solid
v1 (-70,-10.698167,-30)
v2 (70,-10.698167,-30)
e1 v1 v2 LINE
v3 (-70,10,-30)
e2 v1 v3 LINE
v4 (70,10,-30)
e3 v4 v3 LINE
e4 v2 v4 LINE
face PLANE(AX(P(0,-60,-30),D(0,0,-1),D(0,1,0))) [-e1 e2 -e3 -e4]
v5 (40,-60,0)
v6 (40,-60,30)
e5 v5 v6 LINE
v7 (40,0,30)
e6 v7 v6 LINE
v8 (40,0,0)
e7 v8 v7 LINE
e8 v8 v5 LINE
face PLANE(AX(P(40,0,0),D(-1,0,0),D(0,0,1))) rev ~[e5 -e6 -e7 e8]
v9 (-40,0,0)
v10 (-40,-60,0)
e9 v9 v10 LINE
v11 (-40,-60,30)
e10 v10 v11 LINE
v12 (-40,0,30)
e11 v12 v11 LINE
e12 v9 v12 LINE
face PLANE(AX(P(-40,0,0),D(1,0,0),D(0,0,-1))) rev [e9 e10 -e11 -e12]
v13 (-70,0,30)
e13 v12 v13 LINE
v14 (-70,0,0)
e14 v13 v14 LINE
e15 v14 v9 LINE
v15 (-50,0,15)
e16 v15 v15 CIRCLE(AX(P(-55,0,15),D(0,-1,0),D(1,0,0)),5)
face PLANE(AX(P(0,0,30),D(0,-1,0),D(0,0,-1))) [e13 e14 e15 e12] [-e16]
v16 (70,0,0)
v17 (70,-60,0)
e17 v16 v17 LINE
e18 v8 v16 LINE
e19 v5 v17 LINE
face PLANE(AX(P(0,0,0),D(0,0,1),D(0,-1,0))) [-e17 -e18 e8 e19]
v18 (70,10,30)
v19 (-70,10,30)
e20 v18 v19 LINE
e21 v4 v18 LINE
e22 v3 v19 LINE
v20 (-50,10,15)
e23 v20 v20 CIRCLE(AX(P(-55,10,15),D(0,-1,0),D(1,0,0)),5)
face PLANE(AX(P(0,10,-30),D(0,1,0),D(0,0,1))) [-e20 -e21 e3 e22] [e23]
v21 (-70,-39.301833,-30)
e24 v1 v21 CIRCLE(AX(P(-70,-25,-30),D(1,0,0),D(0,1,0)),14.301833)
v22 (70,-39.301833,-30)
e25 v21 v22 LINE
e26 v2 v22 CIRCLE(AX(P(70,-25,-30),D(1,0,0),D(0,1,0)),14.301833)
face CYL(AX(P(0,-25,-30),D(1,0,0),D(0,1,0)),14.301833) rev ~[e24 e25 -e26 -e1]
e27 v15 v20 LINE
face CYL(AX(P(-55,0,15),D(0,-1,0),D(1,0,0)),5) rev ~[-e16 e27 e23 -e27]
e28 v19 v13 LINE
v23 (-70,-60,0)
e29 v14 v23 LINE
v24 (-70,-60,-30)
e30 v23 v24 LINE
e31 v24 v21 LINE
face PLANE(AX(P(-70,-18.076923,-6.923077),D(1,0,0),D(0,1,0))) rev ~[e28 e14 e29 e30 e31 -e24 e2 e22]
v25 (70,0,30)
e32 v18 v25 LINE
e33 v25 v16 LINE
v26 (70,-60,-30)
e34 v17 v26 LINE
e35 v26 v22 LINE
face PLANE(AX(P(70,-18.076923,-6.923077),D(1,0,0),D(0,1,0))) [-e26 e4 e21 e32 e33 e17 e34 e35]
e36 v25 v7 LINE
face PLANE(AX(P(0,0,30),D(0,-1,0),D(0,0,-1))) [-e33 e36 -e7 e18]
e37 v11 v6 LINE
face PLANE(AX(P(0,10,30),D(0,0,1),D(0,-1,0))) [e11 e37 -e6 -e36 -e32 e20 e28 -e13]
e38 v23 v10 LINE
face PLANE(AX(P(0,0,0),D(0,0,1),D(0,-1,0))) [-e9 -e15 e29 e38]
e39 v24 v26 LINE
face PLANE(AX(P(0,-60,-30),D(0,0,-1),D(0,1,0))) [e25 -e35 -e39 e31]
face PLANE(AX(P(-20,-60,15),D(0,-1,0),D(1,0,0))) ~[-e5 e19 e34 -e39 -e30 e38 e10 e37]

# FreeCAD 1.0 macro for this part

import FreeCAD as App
import Part
import Sketcher


def add_polygon(sketch, points):
    """Adds a closed chain of lines whose ends are joined by coincident constraints."""
    first, n = sketch.GeometryCount, len(points)
    for a, b in zip(points, points[1:] + points[:1]):
        sketch.addGeometry(Part.LineSegment(App.Vector(*a, 0), App.Vector(*b, 0)), False)
    for i in range(n):
        sketch.addConstraint(Sketcher.Constraint("Coincident", first + i, 2, first + (i + 1) % n, 1))

doc = App.newDocument("Part")
body = doc.addObject("PartDesign::Body", "Body")

# Sketch on YZ plane
sketch1 = body.newObject("Sketcher::SketchObject", "Sketch")
sketch1.AttachmentSupport = (doc.getObject("YZ_Plane"), [""])
sketch1.MapMode = "FlatFace"
add_polygon(sketch1, [(0, 30), (0, 0), (-60, 0), (-60, -30), (10, -30), (10, 30)])  # lines 0-5
sketch1.addConstraint([
    Sketcher.Constraint("Vertical", 0),
    Sketcher.Constraint("Horizontal", 1),
    Sketcher.Constraint("Vertical", 2),
    Sketcher.Constraint("Horizontal", 3),
    Sketcher.Constraint("Vertical", 4),
    Sketcher.Constraint("Horizontal", 5),
    Sketcher.Constraint("Coincident", 0, 2, -1, 1),
    Sketcher.Constraint("Equal", 0, 2),
    Sketcher.Constraint("Equal", 1, 4),
    Sketcher.Constraint("DistanceX", 1, 2, 1, 1, 60.0),
    Sketcher.Constraint("DistanceX", 3, 1, 3, 2, 70.0),
])
pad1 = body.newObject("PartDesign::Pad", "Pad")
pad1.Profile = sketch1
pad1.Length = 140
pad1.Midplane = True

# Sketch on YZ plane
sketch2 = body.newObject("Sketcher::SketchObject", "Sketch001")
sketch2.AttachmentSupport = (doc.getObject("YZ_Plane"), [""])
sketch2.MapMode = "FlatFace"
sketch2.addGeometry(Part.Circle(App.Vector(-25, -30, 0), App.Vector(0, 0, 1), 14), False)
sketch2.addConstraint([
    Sketcher.Constraint("DistanceX", 0, 3, -1, 1, 25.0),
    Sketcher.Constraint("DistanceY", 0, 3, -1, 1, 30.0),
    Sketcher.Constraint("Diameter", 0, 28.603666),
])
pocket1 = body.newObject("PartDesign::Pocket", "Pocket")
pocket1.Profile = sketch2
pocket1.Length = 175.4
pocket1.Midplane = True

# Sketch on XZ plane
sketch3 = body.newObject("Sketcher::SketchObject", "Sketch002")
sketch3.AttachmentSupport = (doc.getObject("XZ_Plane"), [""])
sketch3.MapMode = "FlatFace"
add_polygon(sketch3, [(0, 30), (0, 0), (40, 0), (40, 30)])  # lines 0-3
sketch3.addConstraint([
    Sketcher.Constraint("Vertical", 0),
    Sketcher.Constraint("Horizontal", 1),
    Sketcher.Constraint("Vertical", 2),
    Sketcher.Constraint("Horizontal", 3),
    Sketcher.Constraint("Coincident", 0, 2, -1, 1),
    Sketcher.Constraint("DistanceX", 1, 1, 1, 2, 40.0),
    Sketcher.Constraint("DistanceY", 0, 2, 0, 1, 30.0),
])
pad2 = body.newObject("PartDesign::Pad", "Pad001")
pad2.Profile = sketch3
pad2.Length = 60
body2 = doc.addObject("PartDesign::Body", "Body001")
doc.recompute()

body2.BaseFeature = body
doc.recompute()

mirroring = doc.addObject("Part::Mirroring", "Mirroring")
mirroring.Source = body
mirroring.Base = App.Vector(0, 0, 0)
mirroring.Normal = App.Vector(1, 0, 0)
body3 = doc.addObject("PartDesign::Body", "Body002")
body3.BaseFeature = mirroring
boolean = body2.newObject("PartDesign::Boolean", "Boolean")
boolean.Type = "Fuse"
boolean.addObjects([body3])
doc.recompute()

# Sketch on XZ plane
sketch4 = body2.newObject("Sketcher::SketchObject", "Sketch003")
sketch4.AttachmentSupport = (doc.getObject("XZ_Plane001"), [""])
sketch4.MapMode = "FlatFace"
sketch4.addGeometry(Part.Circle(App.Vector(-55, 15, 0), App.Vector(0, 0, 1), 5), False)
sketch4.addConstraint([
    Sketcher.Constraint("Diameter", 0, 10.0),
    Sketcher.Constraint("DistanceX", 0, 3, -1, 1, 55.0),
    Sketcher.Constraint("DistanceY", -1, 1, 0, 3, 15.0),
])
pocket2 = body2.newObject("PartDesign::Pocket", "Pocket001")
pocket2.Profile = sketch4
pocket2.Length = 86.3
mirroring.Visibility = False

doc.recompute()
